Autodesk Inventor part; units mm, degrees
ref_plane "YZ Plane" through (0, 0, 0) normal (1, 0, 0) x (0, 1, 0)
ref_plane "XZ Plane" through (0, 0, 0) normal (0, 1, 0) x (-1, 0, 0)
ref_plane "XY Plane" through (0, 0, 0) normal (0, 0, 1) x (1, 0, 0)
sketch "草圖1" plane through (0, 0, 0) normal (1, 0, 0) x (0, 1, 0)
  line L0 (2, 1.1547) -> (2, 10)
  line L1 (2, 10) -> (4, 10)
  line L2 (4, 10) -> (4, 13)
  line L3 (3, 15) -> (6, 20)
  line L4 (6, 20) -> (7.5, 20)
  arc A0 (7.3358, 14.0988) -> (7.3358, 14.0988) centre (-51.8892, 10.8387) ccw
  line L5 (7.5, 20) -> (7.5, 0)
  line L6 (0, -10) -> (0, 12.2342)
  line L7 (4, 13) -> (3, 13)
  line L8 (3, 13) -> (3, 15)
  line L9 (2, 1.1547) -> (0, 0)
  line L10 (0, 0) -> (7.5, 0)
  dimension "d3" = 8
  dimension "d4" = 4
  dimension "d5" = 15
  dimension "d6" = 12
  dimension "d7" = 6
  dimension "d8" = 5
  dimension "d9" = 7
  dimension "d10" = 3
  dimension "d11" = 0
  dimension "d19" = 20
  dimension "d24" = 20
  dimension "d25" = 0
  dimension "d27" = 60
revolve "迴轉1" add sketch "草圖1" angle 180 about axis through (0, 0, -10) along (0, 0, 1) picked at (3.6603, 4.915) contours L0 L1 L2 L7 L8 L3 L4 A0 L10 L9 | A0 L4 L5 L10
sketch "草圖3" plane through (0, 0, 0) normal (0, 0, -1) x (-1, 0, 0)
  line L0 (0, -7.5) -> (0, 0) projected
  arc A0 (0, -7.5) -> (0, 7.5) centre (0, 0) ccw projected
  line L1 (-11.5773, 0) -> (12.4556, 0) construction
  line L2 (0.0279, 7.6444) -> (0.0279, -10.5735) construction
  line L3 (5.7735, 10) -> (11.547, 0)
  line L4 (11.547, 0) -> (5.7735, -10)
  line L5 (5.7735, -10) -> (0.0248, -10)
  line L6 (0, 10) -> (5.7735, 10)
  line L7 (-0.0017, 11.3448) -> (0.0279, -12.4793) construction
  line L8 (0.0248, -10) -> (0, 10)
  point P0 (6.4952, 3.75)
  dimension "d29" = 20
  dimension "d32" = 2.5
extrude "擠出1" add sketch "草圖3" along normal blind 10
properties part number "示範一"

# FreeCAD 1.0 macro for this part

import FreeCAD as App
import Part
import Sketcher
Q = App.Units.Quantity


def add_polygon(sketch, points):
    """Adds a closed chain of lines whose ends are joined by coincident constraints."""
    first, n = sketch.GeometryCount, len(points)
    for a, b in zip(points, points[1:] + points[:1]):
        sketch.addGeometry(Part.LineSegment(App.Vector(*a, 0), App.Vector(*b, 0)), False)
    for i in range(n):
        sketch.addConstraint(Sketcher.Constraint("Coincident", first + i, 2, first + (i + 1) % n, 1))

doc = App.newDocument("Part")
params = doc.addObject("Spreadsheet::Sheet", "Params")
for row, (alias, value) in enumerate([
    ("sketch1_height", "20 mm"),
    ("sketch1_height2", "3 mm"),
    ("sketch1_width", "7.5 mm"),
    ("revolution_angle", "180 deg"),
    ("sketch2_length", "20 mm"),
    ("pad1_length", "10 mm"),
], start=1):
    params.set(f"A{row}", alias)
    params.set(f"B{row}", "=" + value)
    params.setAlias(f"B{row}", alias)

body = doc.addObject("PartDesign::Body", "Body")

# Sketch on YZ plane
sketch1 = body.newObject("Sketcher::SketchObject", "Sketch")
sketch1.AttachmentSupport = (doc.getObject("YZ_Plane"), [""])
sketch1.MapMode = "FlatFace"
add_polygon(sketch1, [(2, 10), (2, 1.1547), (0, 0), (7.5, 0), (7.5, 20), (6, 20), (3, 15), (3, 13), (4, 13), (4, 10)])  # lines 0-9
sketch1.addConstraint(Sketcher.Constraint("Vertical", 0))
sketch1.addConstraint(Sketcher.Constraint("Horizontal", 2))
sketch1.addConstraint(Sketcher.Constraint("Vertical", 3))
sketch1.addConstraint(Sketcher.Constraint("Horizontal", 4))
sketch1.addConstraint(Sketcher.Constraint("Vertical", 6))
sketch1.addConstraint(Sketcher.Constraint("Horizontal", 7))
sketch1.addConstraint(Sketcher.Constraint("Vertical", 8))
sketch1.addConstraint(Sketcher.Constraint("Horizontal", 9))
sketch1.addConstraint(Sketcher.Constraint("Coincident", 1, 2, -1, 1))
sketch1.addConstraint(Sketcher.Constraint("Equal", 9, 6))
sketch1.addConstraint(Sketcher.Constraint("DistanceY", 3, 1, 3, 2, Q("20 mm")))
sketch1.addConstraint(Sketcher.Constraint("DistanceY", 8, 2, 8, 1, Q("3 mm")))
sketch1.addConstraint(Sketcher.Constraint("DistanceX", -1, 1, 4, 2, Q("6 mm")))
sketch1.addConstraint(Sketcher.Constraint("DistanceX", -1, 1, 5, 2, Q("3 mm")))
sketch1.addConstraint(Sketcher.Constraint("DistanceY", -1, 1, 5, 2, Q("15 mm")))
sketch1.addConstraint(Sketcher.Constraint("DistanceX", -1, 1, 7, 2, Q("4 mm")))
sketch1.addConstraint(Sketcher.Constraint("DistanceX", 0, 2, 4, 2, Q("4 mm")))
sketch1.addConstraint(Sketcher.Constraint("Angle", 1, Q("-150 deg")))
sketch1.addConstraint(Sketcher.Constraint("DistanceX", 2, 1, 2, 2, Q("7.5 mm")))
sketch1.setExpression("Constraints[20]", "Params.sketch1_height")
sketch1.setExpression("Constraints[21]", "Params.sketch1_height2")
sketch1.setExpression("Constraints[28]", "Params.sketch1_width")
revolution = body.newObject("PartDesign::Revolution", "Revolution")
revolution.Profile = sketch1
revolution.ReferenceAxis = (sketch1, ["V_Axis"])
revolution.setExpression("Angle", "Params.revolution_angle")

# Sketch on XY plane
sketch2 = body.newObject("Sketcher::SketchObject", "Sketch001")
sketch2.AttachmentSupport = (doc.getObject("XY_Plane"), [""])
sketch2.MapMode = "FlatFace"
add_polygon(sketch2, [(-0.0248, -10), (-5.7735, -10), (-11.547, 0), (-5.7735, 10), (0, 10)])  # lines 0-4
sketch2.addConstraint(Sketcher.Constraint("Horizontal", 0))
sketch2.addConstraint(Sketcher.Constraint("Horizontal", 3))
sketch2.addConstraint(Sketcher.Constraint("Symmetric", 0, 2, 2, 2, -1))
sketch2.addConstraint(Sketcher.Constraint("PointOnObject", 1, 2, -1))
sketch2.addConstraint(Sketcher.Constraint("PointOnObject", 3, 2, -2))
sketch2.addConstraint(Sketcher.Constraint("Distance", 4, Q("20 mm")))
sketch2.addConstraint(Sketcher.Constraint("Angle", 1, Q("120 deg")))
sketch2.addConstraint(Sketcher.Constraint("Angle", 4, Q("-90.071 deg")))
sketch2.addConstraint(Sketcher.Constraint("DistanceX", 0, 2, 0, 1, Q("5.7487 mm")))
sketch2.setExpression("Constraints[10]", "Params.sketch2_length")
pad1 = body.newObject("PartDesign::Pad", "Pad")
pad1.Profile = sketch2
pad1.setExpression("Length", "Params.pad1_length")
pad1.Reversed = True

doc.recompute()
